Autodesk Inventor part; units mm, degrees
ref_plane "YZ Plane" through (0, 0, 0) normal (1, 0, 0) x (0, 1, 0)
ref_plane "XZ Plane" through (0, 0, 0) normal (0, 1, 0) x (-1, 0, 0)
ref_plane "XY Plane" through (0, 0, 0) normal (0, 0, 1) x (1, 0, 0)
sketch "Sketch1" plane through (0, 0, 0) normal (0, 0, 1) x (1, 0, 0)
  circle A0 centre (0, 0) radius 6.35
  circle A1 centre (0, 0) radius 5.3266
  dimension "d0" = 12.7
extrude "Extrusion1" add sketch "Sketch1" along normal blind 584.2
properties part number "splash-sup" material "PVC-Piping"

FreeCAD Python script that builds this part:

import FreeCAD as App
import Part
import Sketcher
from FreeCAD import Vector
Q = App.Units.Quantity

doc = App.newDocument("Part")
params = doc.addObject("Spreadsheet::Sheet", "Params")
for row, (alias, value) in enumerate([
    ("sketch1_diameter", "0.5 in"),
    ("pad1_length", "23 in"),
], start=1):
    params.set(f"A{row}", alias)
    params.set(f"B{row}", "=" + value)
    params.setAlias(f"B{row}", alias)

body = doc.addObject("PartDesign::Body", "Body")

sketch1 = body.newObject("Sketcher::SketchObject", "Sketch")
sketch1.AttachmentSupport = (doc.getObject("XY_Plane"), [""])
sketch1.MapMode = "FlatFace"
sketch1.addGeometry([
    Part.Circle(Vector(0, 0, 0), Vector(0, 0, 1), 6.35),
    Part.Circle(Vector(0, 0, 0), Vector(0, 0, 1), 5.3266),
], False)
sketch1.addConstraint([
    Sketcher.Constraint("Coincident", 0, 3, -1, 1),
    Sketcher.Constraint("Coincident", 1, 3, -1, 1),
    Sketcher.Constraint("Diameter", 0, Q("0.5 in")),
    Sketcher.Constraint("Diameter", 1, Q("10.6532 mm")),
])
sketch1.setExpression("Constraints[2]", "Params.sketch1_diameter")
pad1 = body.newObject("PartDesign::Pad", "Pad")
pad1.Profile = sketch1
pad1.setExpression("Length", "Params.pad1_length")

doc.recompute()
